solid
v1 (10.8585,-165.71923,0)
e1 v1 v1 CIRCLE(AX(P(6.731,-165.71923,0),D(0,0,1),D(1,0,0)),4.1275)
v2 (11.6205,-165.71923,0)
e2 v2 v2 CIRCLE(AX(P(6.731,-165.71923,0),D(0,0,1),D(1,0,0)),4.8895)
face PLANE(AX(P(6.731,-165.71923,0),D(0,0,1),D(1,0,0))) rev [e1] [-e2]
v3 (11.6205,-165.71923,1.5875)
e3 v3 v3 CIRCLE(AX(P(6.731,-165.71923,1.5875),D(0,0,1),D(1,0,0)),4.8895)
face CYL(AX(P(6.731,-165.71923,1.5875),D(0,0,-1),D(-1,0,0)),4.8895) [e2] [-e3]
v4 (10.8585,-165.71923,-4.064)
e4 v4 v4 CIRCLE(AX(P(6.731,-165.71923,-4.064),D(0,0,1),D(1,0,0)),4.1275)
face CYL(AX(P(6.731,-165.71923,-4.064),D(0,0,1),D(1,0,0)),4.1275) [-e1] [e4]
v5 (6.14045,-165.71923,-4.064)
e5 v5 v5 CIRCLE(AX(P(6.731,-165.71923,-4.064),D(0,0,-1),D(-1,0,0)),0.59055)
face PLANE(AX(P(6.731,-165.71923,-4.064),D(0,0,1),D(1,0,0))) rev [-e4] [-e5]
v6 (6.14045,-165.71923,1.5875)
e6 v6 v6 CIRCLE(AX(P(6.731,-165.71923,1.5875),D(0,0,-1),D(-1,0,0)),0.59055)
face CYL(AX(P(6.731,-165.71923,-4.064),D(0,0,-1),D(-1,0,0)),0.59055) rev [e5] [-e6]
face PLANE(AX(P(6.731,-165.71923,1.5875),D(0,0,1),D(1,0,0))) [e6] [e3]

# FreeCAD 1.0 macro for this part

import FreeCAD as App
import Part
import Sketcher
from FreeCAD import Vector
Q = App.Units.Quantity

doc = App.newDocument("Part")
body = doc.addObject("PartDesign::Body", "Body")

# Sketch on XY plane
sketch1 = doc.addObject("Sketcher::SketchObject", "Sketch")
body.addObject(sketch1)
sketch1.AttachmentSupport = (doc.XY_Plane, [""])
sketch1.MapMode = "FlatFace"
sketch1.addGeometry(Part.Circle(Vector(6.731, -165.71923, 0), Vector(0, 0, 1), 4.1275), False)
sketch1.addConstraint(Sketcher.Constraint("Diameter", 0, Q("0.325 in")))
sketch1.addConstraint(Sketcher.Constraint("DistanceX", -1, 1, 0, 3, Q("0.265 in")))
sketch1.addConstraint(Sketcher.Constraint("DistanceY", 0, 3, -1, 1, 165.71923))
pad1 = doc.addObject("PartDesign::Pad", "Pad")
body.addObject(pad1)
pad1.Profile = sketch1
pad1.Length = Q("0.16 in")
pad1.Reversed = True

# Sketch on XY plane
sketch2 = doc.addObject("Sketcher::SketchObject", "Sketch001")
body.addObject(sketch2)
sketch2.AttachmentSupport = (doc.XY_Plane, [""])
sketch2.MapMode = "FlatFace"
sketch2.addGeometry(Part.Circle(Vector(6.731, -165.71923, 0), Vector(0, 0, 1), 4.8895), False)
sketch2.addConstraint(Sketcher.Constraint("Diameter", 0, Q("0.385 in")))
sketch2.addConstraint(Sketcher.Constraint("DistanceX", -1, 1, 0, 3, Q("0.265 in")))
sketch2.addConstraint(Sketcher.Constraint("DistanceY", 0, 3, -1, 1, 165.71923))
pad2 = doc.addObject("PartDesign::Pad", "Pad001")
body.addObject(pad2)
pad2.Profile = sketch2
pad2.Length = Q("0.0625 in")

# Sketch on XY plane
sketch3 = doc.addObject("Sketcher::SketchObject", "Sketch002")
body.addObject(sketch3)
sketch3.AttachmentSupport = (doc.XY_Plane, [""])
sketch3.MapMode = "FlatFace"
sketch3.AttachmentOffset = App.Placement(Vector(0, 0, -0.16 * 25.4), App.Rotation())
sketch3.addGeometry(Part.Circle(Vector(6.731, -165.71923, 0), Vector(0, 0, 1), 0.59055), False)
sketch3.addConstraint(Sketcher.Constraint("Diameter", 0, Q("0.0465 in")))
sketch3.addConstraint(Sketcher.Constraint("DistanceX", -1, 1, 0, 3, Q("0.265 in")))
sketch3.addConstraint(Sketcher.Constraint("DistanceY", 0, 3, -1, 1, 165.71923))
doc.recompute()
hole = doc.addObject("PartDesign::Hole", "Hole")
body.addObject(hole)
hole.Profile = sketch3
hole.ThreadType = "None"
hole.Diameter = Q("0.0465 in")
hole.DepthType = "ThroughAll"
hole.Reversed = True

doc.recompute()
